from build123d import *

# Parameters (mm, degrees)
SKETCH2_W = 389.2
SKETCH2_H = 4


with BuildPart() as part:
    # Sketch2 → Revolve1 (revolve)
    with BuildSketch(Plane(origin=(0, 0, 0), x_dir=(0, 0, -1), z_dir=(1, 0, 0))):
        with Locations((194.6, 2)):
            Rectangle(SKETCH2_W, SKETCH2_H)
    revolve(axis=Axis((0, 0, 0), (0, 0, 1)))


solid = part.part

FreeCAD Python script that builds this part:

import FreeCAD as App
import Part
import Sketcher
from FreeCAD import Vector


def add_polygon(sketch, points):
    """Adds a closed chain of lines whose ends are joined by coincident constraints."""
    first, n = sketch.GeometryCount, len(points)
    for a, b in zip(points, points[1:] + points[:1]):
        sketch.addGeometry(Part.LineSegment(App.Vector(*a, 0), App.Vector(*b, 0)), False)
    for i in range(n):
        sketch.addConstraint(Sketcher.Constraint("Coincident", first + i, 2, first + (i + 1) % n, 1))

doc = App.newDocument("Part")
body = doc.addObject("PartDesign::Body", "Body")

# Sketch on YZ plane
sketch1 = body.newObject("Sketcher::SketchObject", "Sketch")
sketch1.AttachmentSupport = (doc.getObject("YZ_Plane"), [""])
sketch1.MapMode = "FlatFace"
add_polygon(sketch1, [(4, 0), (0, 0), (0, -389.2), (4, -389.2)])  # lines 0-3
sketch1.addConstraint([
    Sketcher.Constraint("Horizontal", 0),
    Sketcher.Constraint("Vertical", 1),
    Sketcher.Constraint("Horizontal", 2),
    Sketcher.Constraint("Vertical", 3),
    Sketcher.Constraint("Coincident", 0, 2, -1, 1),
    Sketcher.Constraint("DistanceX", 0, 2, 0, 1, 4.0),
    Sketcher.Constraint("DistanceY", 1, 2, 1, 1, 389.2),
])
revolution = body.newObject("PartDesign::Revolution", "Revolution")
revolution.Profile = sketch1
revolution.ReferenceAxis = (sketch1, ["V_Axis"])
revolution.Angle = 360

doc.recompute()
